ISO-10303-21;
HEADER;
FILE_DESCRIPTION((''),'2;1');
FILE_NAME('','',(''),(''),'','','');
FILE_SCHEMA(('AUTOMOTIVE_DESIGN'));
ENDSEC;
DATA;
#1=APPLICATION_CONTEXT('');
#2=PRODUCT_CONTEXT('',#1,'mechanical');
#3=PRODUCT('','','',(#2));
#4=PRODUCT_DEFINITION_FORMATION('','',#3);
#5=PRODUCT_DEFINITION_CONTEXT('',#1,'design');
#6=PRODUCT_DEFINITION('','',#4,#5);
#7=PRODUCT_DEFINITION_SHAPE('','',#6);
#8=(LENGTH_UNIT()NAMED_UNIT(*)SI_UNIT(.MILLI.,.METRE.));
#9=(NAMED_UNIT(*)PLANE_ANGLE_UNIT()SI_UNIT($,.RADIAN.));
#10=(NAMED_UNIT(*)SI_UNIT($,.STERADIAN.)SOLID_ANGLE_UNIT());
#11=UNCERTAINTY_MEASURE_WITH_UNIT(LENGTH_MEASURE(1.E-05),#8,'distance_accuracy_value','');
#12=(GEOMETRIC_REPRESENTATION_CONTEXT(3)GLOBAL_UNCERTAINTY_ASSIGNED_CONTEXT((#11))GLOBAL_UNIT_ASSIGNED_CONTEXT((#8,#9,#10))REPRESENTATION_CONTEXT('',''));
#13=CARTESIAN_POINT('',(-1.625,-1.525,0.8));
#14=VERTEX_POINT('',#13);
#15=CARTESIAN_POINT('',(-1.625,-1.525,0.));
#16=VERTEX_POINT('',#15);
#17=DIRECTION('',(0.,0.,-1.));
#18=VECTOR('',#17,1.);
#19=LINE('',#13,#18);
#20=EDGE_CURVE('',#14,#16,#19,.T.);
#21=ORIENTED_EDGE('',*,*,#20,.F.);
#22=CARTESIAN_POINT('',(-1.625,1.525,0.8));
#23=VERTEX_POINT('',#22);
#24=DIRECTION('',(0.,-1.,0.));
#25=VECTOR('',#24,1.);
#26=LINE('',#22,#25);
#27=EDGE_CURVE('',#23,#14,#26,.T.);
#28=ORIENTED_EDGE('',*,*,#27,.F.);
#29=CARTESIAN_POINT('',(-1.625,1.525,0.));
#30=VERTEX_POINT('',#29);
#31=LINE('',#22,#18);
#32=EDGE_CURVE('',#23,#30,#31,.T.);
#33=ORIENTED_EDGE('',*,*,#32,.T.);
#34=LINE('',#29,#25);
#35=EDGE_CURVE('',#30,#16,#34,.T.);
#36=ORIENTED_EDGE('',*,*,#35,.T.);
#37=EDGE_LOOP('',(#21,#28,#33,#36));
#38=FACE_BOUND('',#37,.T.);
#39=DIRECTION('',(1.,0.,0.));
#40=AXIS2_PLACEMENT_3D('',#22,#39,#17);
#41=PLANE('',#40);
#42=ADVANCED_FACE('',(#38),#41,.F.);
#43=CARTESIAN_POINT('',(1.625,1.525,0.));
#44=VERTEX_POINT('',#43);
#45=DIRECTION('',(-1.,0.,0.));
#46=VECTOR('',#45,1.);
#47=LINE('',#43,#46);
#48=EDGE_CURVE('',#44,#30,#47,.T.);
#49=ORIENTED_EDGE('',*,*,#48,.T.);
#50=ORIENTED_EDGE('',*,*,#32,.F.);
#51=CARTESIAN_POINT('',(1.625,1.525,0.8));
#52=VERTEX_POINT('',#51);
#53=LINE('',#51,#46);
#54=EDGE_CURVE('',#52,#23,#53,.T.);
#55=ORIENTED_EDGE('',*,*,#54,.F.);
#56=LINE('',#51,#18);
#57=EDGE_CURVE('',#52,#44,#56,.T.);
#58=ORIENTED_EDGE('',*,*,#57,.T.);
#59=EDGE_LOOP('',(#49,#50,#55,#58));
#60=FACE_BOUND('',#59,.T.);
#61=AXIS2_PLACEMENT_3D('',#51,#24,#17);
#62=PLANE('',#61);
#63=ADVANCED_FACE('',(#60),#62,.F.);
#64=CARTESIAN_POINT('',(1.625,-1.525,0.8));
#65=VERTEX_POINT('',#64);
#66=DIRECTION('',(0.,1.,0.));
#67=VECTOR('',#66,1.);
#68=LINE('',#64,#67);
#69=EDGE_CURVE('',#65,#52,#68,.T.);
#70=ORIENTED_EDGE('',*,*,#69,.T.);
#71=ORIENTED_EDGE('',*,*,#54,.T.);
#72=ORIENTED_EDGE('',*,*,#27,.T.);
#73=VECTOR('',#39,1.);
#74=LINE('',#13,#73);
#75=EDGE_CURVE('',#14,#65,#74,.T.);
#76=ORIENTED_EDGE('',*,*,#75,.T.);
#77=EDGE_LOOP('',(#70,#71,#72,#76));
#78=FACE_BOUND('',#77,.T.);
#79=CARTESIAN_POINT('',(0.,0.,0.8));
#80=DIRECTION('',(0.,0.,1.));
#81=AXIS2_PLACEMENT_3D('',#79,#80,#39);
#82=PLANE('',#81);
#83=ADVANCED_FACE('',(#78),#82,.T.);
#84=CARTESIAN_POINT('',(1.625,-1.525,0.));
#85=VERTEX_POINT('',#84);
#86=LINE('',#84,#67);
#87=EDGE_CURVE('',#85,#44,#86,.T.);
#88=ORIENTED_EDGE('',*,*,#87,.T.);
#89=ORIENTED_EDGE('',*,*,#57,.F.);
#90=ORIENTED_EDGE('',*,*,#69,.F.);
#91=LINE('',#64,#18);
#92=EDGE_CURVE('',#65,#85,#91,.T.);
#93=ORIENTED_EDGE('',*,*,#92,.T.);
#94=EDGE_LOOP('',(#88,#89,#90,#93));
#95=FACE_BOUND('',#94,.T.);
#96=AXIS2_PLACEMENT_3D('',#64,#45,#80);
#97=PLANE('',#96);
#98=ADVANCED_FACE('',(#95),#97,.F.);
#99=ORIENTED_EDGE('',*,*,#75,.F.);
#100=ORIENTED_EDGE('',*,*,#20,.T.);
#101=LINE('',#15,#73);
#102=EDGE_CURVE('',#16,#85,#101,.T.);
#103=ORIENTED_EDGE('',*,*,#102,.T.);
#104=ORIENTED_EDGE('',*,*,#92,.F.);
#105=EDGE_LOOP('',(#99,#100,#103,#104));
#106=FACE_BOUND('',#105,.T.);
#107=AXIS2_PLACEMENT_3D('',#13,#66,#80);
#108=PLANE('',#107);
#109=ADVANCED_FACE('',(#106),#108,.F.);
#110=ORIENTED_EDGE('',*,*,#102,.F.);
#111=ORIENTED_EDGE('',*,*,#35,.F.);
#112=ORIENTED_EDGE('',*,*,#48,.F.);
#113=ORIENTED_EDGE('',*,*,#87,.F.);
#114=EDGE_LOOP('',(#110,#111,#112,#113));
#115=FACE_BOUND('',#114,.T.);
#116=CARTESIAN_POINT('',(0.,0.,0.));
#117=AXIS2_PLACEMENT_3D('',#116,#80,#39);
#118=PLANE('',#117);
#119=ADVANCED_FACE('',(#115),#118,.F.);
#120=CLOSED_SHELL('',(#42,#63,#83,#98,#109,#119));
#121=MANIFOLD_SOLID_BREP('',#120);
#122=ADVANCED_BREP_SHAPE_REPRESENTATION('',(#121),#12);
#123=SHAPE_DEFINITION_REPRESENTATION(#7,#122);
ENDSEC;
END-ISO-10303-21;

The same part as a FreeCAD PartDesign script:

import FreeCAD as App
import Part
import Sketcher
Q = App.Units.Quantity

doc = App.newDocument("Part")
body = doc.addObject("PartDesign::Body", "Body")

# Sketch on XY plane
sketch1 = body.newObject("Sketcher::SketchObject", "Sketch")
sketch1.AttachmentSupport = (doc.getObject("XY_Plane"), [""])
sketch1.MapMode = "FlatFace"
sketch1.addGeometry([
    Part.LineSegment(App.Vector(-1.6, 1.5, 0), App.Vector(-1.6, -1.5, 0)),
    Part.LineSegment(App.Vector(-1.6, -1.5, 0), App.Vector(1.6, -1.5, 0)),
    Part.LineSegment(App.Vector(1.6, -1.5, 0), App.Vector(1.6, 1.5, 0)),
    Part.LineSegment(App.Vector(1.6, 1.5, 0), App.Vector(-1.6, 1.5, 0)),
], False)
sketch1.addConstraint([
    Sketcher.Constraint("Coincident", 0, 2, 1, 1),
    Sketcher.Constraint("Coincident", 1, 2, 2, 1),
    Sketcher.Constraint("Coincident", 2, 2, 3, 1),
    Sketcher.Constraint("Coincident", 3, 2, 0, 1),
    Sketcher.Constraint("Vertical", 0),
    Sketcher.Constraint("Horizontal", 1),
    Sketcher.Constraint("Vertical", 2),
    Sketcher.Constraint("Horizontal", 3),
    Sketcher.Constraint("Symmetric", 0, 2, 2, 2, -1, 1),
    Sketcher.Constraint("DistanceX", 1, 1, 1, 2, Q("3.25 mm")),
    Sketcher.Constraint("DistanceY", 0, 2, 0, 1, Q("3.05 mm")),
])
pad1 = body.newObject("PartDesign::Pad", "Pad")
pad1.Profile = sketch1
pad1.Length = 0.8

doc.recompute()
